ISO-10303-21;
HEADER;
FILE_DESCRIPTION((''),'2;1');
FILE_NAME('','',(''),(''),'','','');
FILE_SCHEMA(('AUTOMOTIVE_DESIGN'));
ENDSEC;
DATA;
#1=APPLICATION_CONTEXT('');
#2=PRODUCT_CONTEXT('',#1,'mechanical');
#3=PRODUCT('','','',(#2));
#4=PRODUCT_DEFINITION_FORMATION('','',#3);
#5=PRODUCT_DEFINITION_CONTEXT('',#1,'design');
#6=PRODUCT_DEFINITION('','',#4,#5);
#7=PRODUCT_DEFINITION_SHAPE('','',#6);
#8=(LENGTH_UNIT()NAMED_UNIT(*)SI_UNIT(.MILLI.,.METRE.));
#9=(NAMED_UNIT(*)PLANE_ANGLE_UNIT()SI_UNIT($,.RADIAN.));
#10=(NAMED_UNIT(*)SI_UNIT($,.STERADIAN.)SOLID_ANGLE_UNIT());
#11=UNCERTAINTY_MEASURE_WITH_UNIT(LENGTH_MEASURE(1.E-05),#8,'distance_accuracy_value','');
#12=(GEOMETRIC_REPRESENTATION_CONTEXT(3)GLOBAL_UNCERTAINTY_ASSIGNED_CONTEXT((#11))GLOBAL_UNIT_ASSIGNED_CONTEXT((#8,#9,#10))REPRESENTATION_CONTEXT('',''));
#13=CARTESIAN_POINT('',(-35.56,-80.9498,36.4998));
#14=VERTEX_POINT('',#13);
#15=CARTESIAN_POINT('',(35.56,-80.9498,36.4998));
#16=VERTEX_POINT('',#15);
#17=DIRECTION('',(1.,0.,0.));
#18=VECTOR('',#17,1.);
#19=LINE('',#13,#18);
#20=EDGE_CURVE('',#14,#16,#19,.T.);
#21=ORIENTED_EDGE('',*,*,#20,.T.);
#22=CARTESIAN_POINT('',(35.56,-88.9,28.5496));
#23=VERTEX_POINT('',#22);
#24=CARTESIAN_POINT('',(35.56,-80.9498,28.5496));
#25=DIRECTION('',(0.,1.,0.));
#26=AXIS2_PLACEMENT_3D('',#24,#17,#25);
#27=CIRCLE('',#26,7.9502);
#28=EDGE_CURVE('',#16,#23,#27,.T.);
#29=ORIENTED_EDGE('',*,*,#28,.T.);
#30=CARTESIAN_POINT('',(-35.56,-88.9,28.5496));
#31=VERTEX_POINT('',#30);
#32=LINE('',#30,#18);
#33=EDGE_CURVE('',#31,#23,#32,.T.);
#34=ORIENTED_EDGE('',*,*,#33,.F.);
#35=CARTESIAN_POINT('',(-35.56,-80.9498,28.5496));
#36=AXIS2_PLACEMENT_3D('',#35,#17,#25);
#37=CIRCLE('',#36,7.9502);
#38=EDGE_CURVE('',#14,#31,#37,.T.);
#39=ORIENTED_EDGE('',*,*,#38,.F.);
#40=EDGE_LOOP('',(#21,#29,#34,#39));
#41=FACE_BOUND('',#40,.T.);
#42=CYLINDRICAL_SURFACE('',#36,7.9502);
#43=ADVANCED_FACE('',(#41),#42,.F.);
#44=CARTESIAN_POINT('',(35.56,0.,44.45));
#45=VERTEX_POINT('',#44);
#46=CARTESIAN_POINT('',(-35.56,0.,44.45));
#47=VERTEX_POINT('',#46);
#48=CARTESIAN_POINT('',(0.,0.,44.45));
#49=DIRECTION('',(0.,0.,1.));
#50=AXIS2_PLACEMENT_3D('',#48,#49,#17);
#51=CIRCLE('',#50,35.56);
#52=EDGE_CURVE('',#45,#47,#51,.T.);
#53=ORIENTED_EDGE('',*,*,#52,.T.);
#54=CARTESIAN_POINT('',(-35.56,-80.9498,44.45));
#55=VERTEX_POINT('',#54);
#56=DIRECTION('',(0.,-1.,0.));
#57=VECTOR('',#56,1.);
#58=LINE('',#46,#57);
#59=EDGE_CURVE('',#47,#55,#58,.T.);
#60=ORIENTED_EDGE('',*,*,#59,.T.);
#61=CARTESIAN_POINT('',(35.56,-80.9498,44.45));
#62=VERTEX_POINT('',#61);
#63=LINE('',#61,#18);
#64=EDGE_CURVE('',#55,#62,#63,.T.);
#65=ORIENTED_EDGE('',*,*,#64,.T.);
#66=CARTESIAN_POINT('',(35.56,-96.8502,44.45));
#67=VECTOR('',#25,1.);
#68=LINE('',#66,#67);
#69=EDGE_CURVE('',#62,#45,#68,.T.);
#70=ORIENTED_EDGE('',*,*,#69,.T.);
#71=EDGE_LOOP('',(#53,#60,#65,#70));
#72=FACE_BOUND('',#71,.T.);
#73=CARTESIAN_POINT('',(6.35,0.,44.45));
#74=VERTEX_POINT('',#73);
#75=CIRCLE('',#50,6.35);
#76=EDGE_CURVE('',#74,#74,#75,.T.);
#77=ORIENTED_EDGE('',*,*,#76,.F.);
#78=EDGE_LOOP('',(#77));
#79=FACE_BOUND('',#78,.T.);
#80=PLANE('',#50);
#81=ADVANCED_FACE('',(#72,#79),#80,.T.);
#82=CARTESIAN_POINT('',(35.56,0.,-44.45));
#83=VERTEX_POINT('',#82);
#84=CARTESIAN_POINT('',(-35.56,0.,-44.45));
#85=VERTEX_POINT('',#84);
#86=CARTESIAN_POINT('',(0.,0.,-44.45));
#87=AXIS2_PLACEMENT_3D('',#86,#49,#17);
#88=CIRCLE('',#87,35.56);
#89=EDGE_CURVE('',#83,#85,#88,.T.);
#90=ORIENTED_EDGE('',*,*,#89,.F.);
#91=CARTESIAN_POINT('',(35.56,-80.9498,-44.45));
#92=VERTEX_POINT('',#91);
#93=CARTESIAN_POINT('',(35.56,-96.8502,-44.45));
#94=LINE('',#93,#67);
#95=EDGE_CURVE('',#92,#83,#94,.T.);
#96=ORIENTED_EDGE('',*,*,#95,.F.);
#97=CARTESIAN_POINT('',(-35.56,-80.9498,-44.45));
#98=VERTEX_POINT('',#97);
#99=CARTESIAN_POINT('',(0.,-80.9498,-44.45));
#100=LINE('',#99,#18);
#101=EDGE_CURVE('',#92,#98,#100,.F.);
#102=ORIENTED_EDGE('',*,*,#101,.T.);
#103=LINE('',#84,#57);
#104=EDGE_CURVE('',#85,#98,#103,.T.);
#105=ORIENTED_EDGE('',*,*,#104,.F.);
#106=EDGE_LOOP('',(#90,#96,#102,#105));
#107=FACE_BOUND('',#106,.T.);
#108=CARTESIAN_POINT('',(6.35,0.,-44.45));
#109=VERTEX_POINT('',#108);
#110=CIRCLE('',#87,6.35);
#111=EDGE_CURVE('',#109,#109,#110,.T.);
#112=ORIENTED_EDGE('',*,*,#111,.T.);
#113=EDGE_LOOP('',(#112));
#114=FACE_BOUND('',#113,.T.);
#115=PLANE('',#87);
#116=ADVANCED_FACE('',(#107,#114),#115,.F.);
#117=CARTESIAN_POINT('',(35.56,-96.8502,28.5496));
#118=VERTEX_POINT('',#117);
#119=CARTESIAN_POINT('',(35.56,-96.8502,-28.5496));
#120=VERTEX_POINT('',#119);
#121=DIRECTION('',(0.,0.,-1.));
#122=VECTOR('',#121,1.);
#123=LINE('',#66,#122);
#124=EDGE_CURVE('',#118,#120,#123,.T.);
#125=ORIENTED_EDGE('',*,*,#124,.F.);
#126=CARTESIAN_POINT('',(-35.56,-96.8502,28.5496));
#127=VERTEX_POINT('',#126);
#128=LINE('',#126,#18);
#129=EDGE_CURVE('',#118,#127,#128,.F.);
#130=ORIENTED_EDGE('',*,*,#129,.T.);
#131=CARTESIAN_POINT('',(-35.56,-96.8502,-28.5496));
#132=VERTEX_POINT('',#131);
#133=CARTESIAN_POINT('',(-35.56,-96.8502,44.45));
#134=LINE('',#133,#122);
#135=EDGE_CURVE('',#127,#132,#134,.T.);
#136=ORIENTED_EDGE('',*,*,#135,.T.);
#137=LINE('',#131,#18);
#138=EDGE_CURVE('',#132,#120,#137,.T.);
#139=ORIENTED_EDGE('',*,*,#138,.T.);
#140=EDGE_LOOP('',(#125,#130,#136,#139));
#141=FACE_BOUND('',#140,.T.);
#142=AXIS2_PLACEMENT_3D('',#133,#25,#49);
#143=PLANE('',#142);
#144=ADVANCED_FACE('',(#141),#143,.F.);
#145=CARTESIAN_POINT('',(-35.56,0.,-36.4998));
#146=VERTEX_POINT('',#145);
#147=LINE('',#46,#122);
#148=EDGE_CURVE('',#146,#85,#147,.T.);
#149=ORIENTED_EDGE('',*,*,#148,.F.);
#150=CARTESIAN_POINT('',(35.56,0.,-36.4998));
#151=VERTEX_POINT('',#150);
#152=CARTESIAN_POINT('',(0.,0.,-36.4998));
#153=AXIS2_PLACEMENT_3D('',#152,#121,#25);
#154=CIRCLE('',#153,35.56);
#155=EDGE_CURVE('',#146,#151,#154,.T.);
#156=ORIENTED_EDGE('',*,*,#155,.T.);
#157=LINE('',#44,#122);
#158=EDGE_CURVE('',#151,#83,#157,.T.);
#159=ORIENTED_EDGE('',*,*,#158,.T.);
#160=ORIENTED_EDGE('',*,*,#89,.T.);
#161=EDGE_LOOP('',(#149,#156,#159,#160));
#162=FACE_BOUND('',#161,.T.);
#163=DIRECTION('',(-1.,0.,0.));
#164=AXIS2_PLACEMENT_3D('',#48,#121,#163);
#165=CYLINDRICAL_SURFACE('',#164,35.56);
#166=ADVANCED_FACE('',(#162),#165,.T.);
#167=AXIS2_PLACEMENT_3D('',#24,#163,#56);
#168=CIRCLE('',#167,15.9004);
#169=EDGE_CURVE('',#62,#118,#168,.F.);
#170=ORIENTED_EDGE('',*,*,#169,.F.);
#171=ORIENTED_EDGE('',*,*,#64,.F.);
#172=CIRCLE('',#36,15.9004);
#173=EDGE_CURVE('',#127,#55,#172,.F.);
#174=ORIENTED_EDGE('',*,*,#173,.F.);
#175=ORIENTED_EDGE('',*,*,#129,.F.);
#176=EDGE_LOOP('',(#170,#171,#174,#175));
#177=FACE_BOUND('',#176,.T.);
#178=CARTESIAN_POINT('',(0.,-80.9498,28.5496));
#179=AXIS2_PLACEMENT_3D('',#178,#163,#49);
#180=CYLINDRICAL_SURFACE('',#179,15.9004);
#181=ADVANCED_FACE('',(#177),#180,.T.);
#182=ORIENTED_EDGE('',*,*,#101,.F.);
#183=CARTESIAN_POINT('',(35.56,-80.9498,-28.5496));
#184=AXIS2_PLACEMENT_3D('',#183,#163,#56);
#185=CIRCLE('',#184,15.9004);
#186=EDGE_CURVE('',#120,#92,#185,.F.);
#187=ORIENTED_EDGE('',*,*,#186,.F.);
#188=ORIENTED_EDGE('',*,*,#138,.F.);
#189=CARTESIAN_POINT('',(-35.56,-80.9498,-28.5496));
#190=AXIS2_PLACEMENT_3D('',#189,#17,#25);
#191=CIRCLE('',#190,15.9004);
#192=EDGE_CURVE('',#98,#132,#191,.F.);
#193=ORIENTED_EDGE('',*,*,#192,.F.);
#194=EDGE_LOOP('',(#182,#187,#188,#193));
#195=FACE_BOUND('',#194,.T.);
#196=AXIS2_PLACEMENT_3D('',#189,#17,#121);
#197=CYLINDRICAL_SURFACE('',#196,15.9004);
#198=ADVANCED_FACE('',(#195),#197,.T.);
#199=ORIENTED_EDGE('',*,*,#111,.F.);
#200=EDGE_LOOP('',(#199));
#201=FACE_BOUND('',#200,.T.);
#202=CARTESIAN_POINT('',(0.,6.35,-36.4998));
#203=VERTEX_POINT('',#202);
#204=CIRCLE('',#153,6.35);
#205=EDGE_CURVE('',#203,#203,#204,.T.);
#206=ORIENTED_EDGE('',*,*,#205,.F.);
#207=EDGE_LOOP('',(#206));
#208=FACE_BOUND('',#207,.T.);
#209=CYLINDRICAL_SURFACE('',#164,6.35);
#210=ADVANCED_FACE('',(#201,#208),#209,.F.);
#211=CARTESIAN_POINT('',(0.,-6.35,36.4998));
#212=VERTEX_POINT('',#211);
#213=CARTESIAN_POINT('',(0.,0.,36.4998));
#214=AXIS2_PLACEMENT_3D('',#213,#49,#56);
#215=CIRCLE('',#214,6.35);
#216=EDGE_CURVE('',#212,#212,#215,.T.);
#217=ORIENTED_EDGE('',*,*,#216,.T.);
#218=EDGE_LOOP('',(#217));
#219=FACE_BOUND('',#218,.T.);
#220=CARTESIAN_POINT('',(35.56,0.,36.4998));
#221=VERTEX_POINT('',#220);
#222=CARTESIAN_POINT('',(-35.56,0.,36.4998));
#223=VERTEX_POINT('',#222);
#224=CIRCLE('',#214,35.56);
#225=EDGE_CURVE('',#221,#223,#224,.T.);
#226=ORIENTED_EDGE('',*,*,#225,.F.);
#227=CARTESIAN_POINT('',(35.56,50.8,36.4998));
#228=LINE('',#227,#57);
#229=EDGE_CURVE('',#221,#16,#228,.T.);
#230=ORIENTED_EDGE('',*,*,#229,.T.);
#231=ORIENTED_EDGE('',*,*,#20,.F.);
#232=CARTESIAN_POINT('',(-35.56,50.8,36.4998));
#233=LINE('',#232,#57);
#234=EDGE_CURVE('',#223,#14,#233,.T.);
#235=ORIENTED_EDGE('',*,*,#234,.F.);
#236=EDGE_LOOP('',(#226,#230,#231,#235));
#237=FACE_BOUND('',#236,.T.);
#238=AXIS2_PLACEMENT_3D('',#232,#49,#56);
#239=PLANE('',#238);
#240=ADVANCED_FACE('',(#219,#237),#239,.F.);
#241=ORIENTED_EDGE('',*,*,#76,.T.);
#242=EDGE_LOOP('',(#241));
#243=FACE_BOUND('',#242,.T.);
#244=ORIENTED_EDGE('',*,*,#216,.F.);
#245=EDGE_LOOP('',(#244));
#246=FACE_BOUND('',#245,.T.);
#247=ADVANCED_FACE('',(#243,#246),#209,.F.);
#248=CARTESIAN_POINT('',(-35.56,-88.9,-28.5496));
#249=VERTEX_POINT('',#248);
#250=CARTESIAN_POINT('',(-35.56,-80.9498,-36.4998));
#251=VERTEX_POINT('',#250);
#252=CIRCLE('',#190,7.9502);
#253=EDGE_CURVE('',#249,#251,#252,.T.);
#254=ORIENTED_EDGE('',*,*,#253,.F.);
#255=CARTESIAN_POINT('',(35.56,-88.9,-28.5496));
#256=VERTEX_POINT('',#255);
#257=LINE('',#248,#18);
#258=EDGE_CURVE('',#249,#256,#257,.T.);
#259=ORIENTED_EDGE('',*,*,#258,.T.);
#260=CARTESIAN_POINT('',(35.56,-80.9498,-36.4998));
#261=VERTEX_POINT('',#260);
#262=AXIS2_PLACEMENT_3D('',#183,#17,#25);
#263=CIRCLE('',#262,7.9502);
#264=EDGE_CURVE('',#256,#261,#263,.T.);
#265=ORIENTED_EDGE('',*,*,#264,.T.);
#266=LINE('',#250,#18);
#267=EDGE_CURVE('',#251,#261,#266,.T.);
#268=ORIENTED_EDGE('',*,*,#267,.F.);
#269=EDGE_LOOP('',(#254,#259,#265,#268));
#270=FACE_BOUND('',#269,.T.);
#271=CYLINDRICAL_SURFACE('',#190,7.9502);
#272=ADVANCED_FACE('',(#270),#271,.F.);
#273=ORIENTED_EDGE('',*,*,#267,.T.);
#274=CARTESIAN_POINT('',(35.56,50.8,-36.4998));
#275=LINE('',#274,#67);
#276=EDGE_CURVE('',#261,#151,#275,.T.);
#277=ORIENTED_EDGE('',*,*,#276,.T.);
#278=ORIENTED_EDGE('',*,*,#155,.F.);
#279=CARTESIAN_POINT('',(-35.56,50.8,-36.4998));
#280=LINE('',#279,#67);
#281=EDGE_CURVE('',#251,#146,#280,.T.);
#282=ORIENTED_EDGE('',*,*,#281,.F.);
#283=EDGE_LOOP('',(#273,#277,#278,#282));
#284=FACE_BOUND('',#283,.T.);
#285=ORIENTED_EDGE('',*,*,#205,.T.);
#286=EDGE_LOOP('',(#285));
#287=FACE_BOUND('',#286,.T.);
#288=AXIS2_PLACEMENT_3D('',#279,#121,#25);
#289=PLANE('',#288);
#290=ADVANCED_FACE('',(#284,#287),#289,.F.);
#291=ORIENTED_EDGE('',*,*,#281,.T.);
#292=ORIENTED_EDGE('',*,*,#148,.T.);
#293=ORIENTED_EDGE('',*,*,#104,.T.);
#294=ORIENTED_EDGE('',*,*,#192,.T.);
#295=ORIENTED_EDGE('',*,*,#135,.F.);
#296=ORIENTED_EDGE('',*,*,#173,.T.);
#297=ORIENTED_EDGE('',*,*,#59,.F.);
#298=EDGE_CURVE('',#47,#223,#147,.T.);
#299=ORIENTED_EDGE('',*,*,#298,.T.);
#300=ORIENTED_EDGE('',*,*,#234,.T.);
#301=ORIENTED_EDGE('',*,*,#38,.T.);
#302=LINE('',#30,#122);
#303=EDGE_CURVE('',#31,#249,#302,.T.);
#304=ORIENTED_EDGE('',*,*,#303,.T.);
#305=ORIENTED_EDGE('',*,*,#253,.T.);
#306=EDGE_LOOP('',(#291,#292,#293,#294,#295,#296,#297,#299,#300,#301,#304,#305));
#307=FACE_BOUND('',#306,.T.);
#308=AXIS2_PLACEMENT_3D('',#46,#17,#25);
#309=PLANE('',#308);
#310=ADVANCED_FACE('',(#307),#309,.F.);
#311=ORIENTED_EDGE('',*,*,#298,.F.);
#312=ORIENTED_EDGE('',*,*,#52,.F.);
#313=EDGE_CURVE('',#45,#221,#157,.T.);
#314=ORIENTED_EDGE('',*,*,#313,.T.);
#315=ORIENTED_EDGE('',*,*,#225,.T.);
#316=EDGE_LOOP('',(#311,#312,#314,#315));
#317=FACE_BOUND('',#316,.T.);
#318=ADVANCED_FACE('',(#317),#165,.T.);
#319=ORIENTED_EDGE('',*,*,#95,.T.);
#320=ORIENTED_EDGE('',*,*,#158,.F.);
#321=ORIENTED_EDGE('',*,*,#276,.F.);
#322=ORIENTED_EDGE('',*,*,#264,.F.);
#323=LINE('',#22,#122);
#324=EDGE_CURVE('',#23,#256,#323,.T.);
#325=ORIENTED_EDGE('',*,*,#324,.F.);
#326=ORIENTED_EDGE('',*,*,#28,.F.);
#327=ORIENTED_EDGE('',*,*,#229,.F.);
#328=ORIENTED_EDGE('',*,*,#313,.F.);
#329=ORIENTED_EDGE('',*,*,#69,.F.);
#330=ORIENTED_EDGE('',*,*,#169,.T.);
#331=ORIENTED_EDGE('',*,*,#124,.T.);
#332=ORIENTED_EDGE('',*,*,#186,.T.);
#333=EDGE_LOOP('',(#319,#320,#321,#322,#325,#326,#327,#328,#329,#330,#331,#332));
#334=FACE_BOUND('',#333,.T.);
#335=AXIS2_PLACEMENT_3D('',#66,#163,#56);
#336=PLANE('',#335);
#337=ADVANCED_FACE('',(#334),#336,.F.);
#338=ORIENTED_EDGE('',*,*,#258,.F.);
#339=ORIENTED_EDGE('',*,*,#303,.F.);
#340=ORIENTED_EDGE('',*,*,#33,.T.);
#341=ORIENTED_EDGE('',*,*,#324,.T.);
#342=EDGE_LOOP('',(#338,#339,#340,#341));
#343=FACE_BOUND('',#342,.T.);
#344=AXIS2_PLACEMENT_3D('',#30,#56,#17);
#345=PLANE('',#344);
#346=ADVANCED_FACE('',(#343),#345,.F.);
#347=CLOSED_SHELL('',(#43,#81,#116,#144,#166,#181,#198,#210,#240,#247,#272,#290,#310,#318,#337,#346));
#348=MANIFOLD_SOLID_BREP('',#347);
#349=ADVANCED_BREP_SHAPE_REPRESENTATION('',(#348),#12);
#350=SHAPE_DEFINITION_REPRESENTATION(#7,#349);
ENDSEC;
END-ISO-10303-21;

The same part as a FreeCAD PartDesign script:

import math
import FreeCAD as App
import Part
import Sketcher
from FreeCAD import Vector
Q = App.Units.Quantity


def edges_at(feature, points):
    """Names of the edges that pass closest to the given points."""
    edges = feature.Shape.Edges
    near = lambda p: min(range(len(edges)), key=lambda i: edges[i].distToShape(Part.Vertex(*p))[0])
    return sorted({f"Edge{near(p) + 1}" for p in points})

doc = App.newDocument("Part")
params = doc.addObject("Spreadsheet::Sheet", "Params")
for row, (alias, value) in enumerate([
    ("sketch1_diameter", "0.5 in"),
    ("sketch1_radius", "1.4 in"),
    ("sketch1_height", "3.813 in"),
    ("pad1_length", "3.5 in"),
    ("sketch2_radius", "0.313 in"),
    ("sketch2_height", "2.874 in"),
    ("fillet_radius", "0.626 in"),
], start=1):
    params.set(f"A{row}", alias)
    params.set(f"B{row}", "=" + value)
    params.setAlias(f"B{row}", alias)

body = doc.addObject("PartDesign::Body", "Body")

# Sketch on XY plane
sketch1 = doc.addObject("Sketcher::SketchObject", "Sketch")
body.addObject(sketch1)
sketch1.AttachmentSupport = (doc.XY_Plane, [""])
sketch1.MapMode = "FlatFace"
sketch1.addGeometry(Part.LineSegment(Vector(-35.56, 0, 0), Vector(-35.56, -96.8502, 0)), False)
sketch1.addGeometry(Part.LineSegment(Vector(-35.56, -96.8502, 0), Vector(35.56, -96.8502, 0)), False)
sketch1.addGeometry(Part.LineSegment(Vector(35.56, -96.8502, 0), Vector(35.56, 0, 0)), False)
sketch1.addGeometry(Part.ArcOfCircle(Part.Circle(Vector(0, 0, 0), Vector(0, 0, 1), 35.56), math.radians(0), math.radians(180)), False)
sketch1.addGeometry(Part.Circle(Vector(0, 0, 0), Vector(0, 0, 1), 6.35), False)
sketch1.addConstraint(Sketcher.Constraint("Coincident", 0, 2, 1, 1))
sketch1.addConstraint(Sketcher.Constraint("Coincident", 1, 2, 2, 1))
sketch1.addConstraint(Sketcher.Constraint("Tangent", 2, 2, 3, 1))
sketch1.addConstraint(Sketcher.Constraint("Tangent", 3, 2, 0, 1))
sketch1.addConstraint(Sketcher.Constraint("Vertical", 0))
sketch1.addConstraint(Sketcher.Constraint("Horizontal", 1))
sketch1.addConstraint(Sketcher.Constraint("Vertical", 2))
sketch1.addConstraint(Sketcher.Constraint("Coincident", 3, 3, -1, 1))
sketch1.addConstraint(Sketcher.Constraint("Coincident", 4, 3, -1, 1))
sketch1.addConstraint(Sketcher.Constraint("Diameter", 4, Q("0.5 in")))
sketch1.addConstraint(Sketcher.Constraint("Radius", 3, Q("1.4 in")))
sketch1.addConstraint(Sketcher.Constraint("DistanceY", 0, 2, 0, 1, Q("3.813 in")))
sketch1.setExpression("Constraints[9]", "Params.sketch1_diameter")
sketch1.setExpression("Constraints[10]", "Params.sketch1_radius")
sketch1.setExpression("Constraints[11]", "Params.sketch1_height")
pad1 = doc.addObject("PartDesign::Pad", "Pad")
body.addObject(pad1)
pad1.Profile = sketch1
pad1.setExpression("Length", "Params.pad1_length")
pad1.Midplane = True

# Sketch on YZ plane
sketch2 = doc.addObject("Sketcher::SketchObject", "Sketch001")
body.addObject(sketch2)
sketch2.AttachmentSupport = (doc.YZ_Plane, [""])
sketch2.MapMode = "FlatFace"
sketch2.AttachmentOffset = App.Placement(Vector(0, 0, 1.4 * 25.4), App.Rotation())
sketch2.addGeometry(Part.LineSegment(Vector(50.8, -36.4998, 0), Vector(50.8, 36.4998, 0)), False)
sketch2.addGeometry(Part.LineSegment(Vector(50.8, 36.4998, 0), Vector(-80.9498, 36.4998, 0)), False)
sketch2.addGeometry(Part.ArcOfCircle(Part.Circle(Vector(-80.9498, 28.5496, 0), Vector(0, 0, 1), 7.9502), math.radians(90), math.radians(180)), False)
sketch2.addGeometry(Part.LineSegment(Vector(-88.9, 28.5496, 0), Vector(-88.9, -28.5496, 0)), False)
sketch2.addGeometry(Part.ArcOfCircle(Part.Circle(Vector(-80.9498, -28.5496, 0), Vector(0, 0, 1), 7.9502), math.radians(180), math.radians(270)), False)
sketch2.addGeometry(Part.LineSegment(Vector(-80.9498, -36.4998, 0), Vector(50.8, -36.4998, 0)), False)
sketch2.addConstraint(Sketcher.Constraint("Coincident", 0, 2, 1, 1))
sketch2.addConstraint(Sketcher.Constraint("Tangent", 1, 2, 2, 1))
sketch2.addConstraint(Sketcher.Constraint("Tangent", 2, 2, 3, 1))
sketch2.addConstraint(Sketcher.Constraint("Tangent", 3, 2, 4, 1))
sketch2.addConstraint(Sketcher.Constraint("Tangent", 4, 2, 5, 1))
sketch2.addConstraint(Sketcher.Constraint("Coincident", 5, 2, 0, 1))
sketch2.addConstraint(Sketcher.Constraint("Vertical", 0))
sketch2.addConstraint(Sketcher.Constraint("Horizontal", 1))
sketch2.addConstraint(Sketcher.Constraint("Vertical", 3))
sketch2.addConstraint(Sketcher.Constraint("Horizontal", 5))
sketch2.addConstraint(Sketcher.Constraint("Equal", 2, 4))
sketch2.addConstraint(Sketcher.Constraint("DistanceX", -1, 1, 0, 2, Q("2 in")))
sketch2.addConstraint(Sketcher.Constraint("Radius", 2, Q("0.313 in")))
sketch2.addConstraint(Sketcher.Constraint("DistanceX", 2, 2, -1, 1, Q("3.5 in")))
sketch2.addConstraint(Sketcher.Constraint("DistanceY", 0, 1, 0, 2, Q("2.874 in")))
sketch2.addConstraint(Sketcher.Constraint("DistanceY", -1, 1, 2, 3, Q("1.124 in")))
sketch2.setExpression("Constraints[12]", "Params.sketch2_radius")
sketch2.setExpression("Constraints[14]", "Params.sketch2_height")
pocket1 = doc.addObject("PartDesign::Pocket", "Pocket")
body.addObject(pocket1)
pocket1.Profile = sketch2
pocket1.Type = "ThroughAll"
doc.recompute()

fillet = doc.addObject("PartDesign::Fillet", "Fillet")
body.addObject(fillet)
fillet.Base = (pocket1, edges_at(pocket1, [(0, -96.85, 44.45), (0, -96.85, -44.45)]))
fillet.setExpression("Radius", "Params.fillet_radius")

doc.recompute()
